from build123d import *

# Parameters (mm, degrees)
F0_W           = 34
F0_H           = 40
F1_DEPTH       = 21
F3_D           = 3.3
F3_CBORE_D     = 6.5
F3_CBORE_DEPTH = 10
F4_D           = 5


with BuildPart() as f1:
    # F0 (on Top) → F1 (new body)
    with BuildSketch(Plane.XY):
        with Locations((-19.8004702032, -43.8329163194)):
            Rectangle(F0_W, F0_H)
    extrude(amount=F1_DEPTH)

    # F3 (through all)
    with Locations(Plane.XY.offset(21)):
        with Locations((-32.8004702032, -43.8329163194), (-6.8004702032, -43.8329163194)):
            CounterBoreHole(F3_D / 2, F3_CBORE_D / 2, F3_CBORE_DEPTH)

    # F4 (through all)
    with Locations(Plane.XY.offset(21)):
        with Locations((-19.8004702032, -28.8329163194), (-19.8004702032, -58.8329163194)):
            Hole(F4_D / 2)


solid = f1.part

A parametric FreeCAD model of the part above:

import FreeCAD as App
import Part
import Sketcher
from FreeCAD import Vector
Q = App.Units.Quantity


def add_polygon(sketch, points):
    """Adds a closed chain of lines whose ends are joined by coincident constraints."""
    first, n = sketch.GeometryCount, len(points)
    for a, b in zip(points, points[1:] + points[:1]):
        sketch.addGeometry(Part.LineSegment(App.Vector(*a, 0), App.Vector(*b, 0)), False)
    for i in range(n):
        sketch.addConstraint(Sketcher.Constraint("Coincident", first + i, 2, first + (i + 1) % n, 1))

doc = App.newDocument("Part")
body = doc.addObject("PartDesign::Body", "Body")

# Sketch on XY plane
sketch1 = body.newObject("Sketcher::SketchObject", "Sketch")
sketch1.AttachmentSupport = (doc.getObject("XY_Plane"), [""])
sketch1.MapMode = "FlatFace"
add_polygon(sketch1, [(-37, -24), (-37, -64), (-3, -64), (-3, -24)])  # lines 0-3
sketch1.addConstraint([
    Sketcher.Constraint("Vertical", 0),
    Sketcher.Constraint("Horizontal", 1),
    Sketcher.Constraint("Vertical", 2),
    Sketcher.Constraint("Horizontal", 3),
    Sketcher.Constraint("DistanceX", 1, 1, 1, 2, Q("34 mm")),
    Sketcher.Constraint("DistanceY", 0, 2, 0, 1, Q("40 mm")),
    Sketcher.Constraint("DistanceX", 0, 2, -1, 1, Q("36.80047 mm")),
    Sketcher.Constraint("DistanceY", 0, 2, -1, 1, Q("63.832916 mm")),
])
pad1 = body.newObject("PartDesign::Pad", "Pad")
pad1.Profile = sketch1
pad1.Length = 21

# Sketch on XY plane
sketch2 = body.newObject("Sketcher::SketchObject", "Sketch001")
sketch2.AttachmentSupport = (doc.getObject("XY_Plane"), [""])
sketch2.MapMode = "FlatFace"
sketch2.AttachmentOffset = App.Placement(Vector(0, 0, 21), App.Rotation())
sketch2.addGeometry([
    Part.Circle(Vector(-32.8, -43.8, 0), Vector(0, 0, 1), 1.6),
    Part.Circle(Vector(-6.8, -43.8, 0), Vector(0, 0, 1), 1.6),
], False)
sketch2.addConstraint([
    Sketcher.Constraint("Equal", 0, 1),
    Sketcher.Constraint("Horizontal", 0, 3, 1, 3),
    Sketcher.Constraint("Diameter", 0, Q("3.3 mm")),
    Sketcher.Constraint("DistanceX", 0, 3, 1, 3, Q("26 mm")),
    Sketcher.Constraint("DistanceX", 0, 3, -1, 1, Q("32.80047 mm")),
    Sketcher.Constraint("DistanceY", 0, 3, -1, 1, Q("43.832916 mm")),
])
doc.recompute()
hole = body.newObject("PartDesign::Hole", "Hole")
hole.Profile = sketch2
hole.ThreadType = "None"
hole.Diameter = 3.3
hole.DepthType = "ThroughAll"
hole.HoleCutType = "Counterbore"
hole.HoleCutDiameter = 6.5
hole.HoleCutDepth = 10

# Sketch on XY plane
sketch3 = body.newObject("Sketcher::SketchObject", "Sketch002")
sketch3.AttachmentSupport = (doc.getObject("XY_Plane"), [""])
sketch3.MapMode = "FlatFace"
sketch3.AttachmentOffset = App.Placement(Vector(0, 0, 21), App.Rotation())
sketch3.addGeometry([
    Part.Circle(Vector(-19.8, -28.8, 0), Vector(0, 0, 1), 2.5),
    Part.Circle(Vector(-19.8, -58.8, 0), Vector(0, 0, 1), 2.5),
], False)
sketch3.addConstraint([
    Sketcher.Constraint("Equal", 0, 1),
    Sketcher.Constraint("Vertical", 0, 3, 1, 3),
    Sketcher.Constraint("Diameter", 0, Q("5 mm")),
    Sketcher.Constraint("DistanceY", 1, 3, 0, 3, Q("30 mm")),
    Sketcher.Constraint("DistanceX", 0, 3, -1, 1, Q("19.80047 mm")),
    Sketcher.Constraint("DistanceY", 0, 3, -1, 1, Q("28.832916 mm")),
])
doc.recompute()
hole2 = body.newObject("PartDesign::Hole", "Hole001")
hole2.Profile = sketch3
hole2.ThreadType = "None"
hole2.Diameter = 5
hole2.DepthType = "ThroughAll"

doc.recompute()
